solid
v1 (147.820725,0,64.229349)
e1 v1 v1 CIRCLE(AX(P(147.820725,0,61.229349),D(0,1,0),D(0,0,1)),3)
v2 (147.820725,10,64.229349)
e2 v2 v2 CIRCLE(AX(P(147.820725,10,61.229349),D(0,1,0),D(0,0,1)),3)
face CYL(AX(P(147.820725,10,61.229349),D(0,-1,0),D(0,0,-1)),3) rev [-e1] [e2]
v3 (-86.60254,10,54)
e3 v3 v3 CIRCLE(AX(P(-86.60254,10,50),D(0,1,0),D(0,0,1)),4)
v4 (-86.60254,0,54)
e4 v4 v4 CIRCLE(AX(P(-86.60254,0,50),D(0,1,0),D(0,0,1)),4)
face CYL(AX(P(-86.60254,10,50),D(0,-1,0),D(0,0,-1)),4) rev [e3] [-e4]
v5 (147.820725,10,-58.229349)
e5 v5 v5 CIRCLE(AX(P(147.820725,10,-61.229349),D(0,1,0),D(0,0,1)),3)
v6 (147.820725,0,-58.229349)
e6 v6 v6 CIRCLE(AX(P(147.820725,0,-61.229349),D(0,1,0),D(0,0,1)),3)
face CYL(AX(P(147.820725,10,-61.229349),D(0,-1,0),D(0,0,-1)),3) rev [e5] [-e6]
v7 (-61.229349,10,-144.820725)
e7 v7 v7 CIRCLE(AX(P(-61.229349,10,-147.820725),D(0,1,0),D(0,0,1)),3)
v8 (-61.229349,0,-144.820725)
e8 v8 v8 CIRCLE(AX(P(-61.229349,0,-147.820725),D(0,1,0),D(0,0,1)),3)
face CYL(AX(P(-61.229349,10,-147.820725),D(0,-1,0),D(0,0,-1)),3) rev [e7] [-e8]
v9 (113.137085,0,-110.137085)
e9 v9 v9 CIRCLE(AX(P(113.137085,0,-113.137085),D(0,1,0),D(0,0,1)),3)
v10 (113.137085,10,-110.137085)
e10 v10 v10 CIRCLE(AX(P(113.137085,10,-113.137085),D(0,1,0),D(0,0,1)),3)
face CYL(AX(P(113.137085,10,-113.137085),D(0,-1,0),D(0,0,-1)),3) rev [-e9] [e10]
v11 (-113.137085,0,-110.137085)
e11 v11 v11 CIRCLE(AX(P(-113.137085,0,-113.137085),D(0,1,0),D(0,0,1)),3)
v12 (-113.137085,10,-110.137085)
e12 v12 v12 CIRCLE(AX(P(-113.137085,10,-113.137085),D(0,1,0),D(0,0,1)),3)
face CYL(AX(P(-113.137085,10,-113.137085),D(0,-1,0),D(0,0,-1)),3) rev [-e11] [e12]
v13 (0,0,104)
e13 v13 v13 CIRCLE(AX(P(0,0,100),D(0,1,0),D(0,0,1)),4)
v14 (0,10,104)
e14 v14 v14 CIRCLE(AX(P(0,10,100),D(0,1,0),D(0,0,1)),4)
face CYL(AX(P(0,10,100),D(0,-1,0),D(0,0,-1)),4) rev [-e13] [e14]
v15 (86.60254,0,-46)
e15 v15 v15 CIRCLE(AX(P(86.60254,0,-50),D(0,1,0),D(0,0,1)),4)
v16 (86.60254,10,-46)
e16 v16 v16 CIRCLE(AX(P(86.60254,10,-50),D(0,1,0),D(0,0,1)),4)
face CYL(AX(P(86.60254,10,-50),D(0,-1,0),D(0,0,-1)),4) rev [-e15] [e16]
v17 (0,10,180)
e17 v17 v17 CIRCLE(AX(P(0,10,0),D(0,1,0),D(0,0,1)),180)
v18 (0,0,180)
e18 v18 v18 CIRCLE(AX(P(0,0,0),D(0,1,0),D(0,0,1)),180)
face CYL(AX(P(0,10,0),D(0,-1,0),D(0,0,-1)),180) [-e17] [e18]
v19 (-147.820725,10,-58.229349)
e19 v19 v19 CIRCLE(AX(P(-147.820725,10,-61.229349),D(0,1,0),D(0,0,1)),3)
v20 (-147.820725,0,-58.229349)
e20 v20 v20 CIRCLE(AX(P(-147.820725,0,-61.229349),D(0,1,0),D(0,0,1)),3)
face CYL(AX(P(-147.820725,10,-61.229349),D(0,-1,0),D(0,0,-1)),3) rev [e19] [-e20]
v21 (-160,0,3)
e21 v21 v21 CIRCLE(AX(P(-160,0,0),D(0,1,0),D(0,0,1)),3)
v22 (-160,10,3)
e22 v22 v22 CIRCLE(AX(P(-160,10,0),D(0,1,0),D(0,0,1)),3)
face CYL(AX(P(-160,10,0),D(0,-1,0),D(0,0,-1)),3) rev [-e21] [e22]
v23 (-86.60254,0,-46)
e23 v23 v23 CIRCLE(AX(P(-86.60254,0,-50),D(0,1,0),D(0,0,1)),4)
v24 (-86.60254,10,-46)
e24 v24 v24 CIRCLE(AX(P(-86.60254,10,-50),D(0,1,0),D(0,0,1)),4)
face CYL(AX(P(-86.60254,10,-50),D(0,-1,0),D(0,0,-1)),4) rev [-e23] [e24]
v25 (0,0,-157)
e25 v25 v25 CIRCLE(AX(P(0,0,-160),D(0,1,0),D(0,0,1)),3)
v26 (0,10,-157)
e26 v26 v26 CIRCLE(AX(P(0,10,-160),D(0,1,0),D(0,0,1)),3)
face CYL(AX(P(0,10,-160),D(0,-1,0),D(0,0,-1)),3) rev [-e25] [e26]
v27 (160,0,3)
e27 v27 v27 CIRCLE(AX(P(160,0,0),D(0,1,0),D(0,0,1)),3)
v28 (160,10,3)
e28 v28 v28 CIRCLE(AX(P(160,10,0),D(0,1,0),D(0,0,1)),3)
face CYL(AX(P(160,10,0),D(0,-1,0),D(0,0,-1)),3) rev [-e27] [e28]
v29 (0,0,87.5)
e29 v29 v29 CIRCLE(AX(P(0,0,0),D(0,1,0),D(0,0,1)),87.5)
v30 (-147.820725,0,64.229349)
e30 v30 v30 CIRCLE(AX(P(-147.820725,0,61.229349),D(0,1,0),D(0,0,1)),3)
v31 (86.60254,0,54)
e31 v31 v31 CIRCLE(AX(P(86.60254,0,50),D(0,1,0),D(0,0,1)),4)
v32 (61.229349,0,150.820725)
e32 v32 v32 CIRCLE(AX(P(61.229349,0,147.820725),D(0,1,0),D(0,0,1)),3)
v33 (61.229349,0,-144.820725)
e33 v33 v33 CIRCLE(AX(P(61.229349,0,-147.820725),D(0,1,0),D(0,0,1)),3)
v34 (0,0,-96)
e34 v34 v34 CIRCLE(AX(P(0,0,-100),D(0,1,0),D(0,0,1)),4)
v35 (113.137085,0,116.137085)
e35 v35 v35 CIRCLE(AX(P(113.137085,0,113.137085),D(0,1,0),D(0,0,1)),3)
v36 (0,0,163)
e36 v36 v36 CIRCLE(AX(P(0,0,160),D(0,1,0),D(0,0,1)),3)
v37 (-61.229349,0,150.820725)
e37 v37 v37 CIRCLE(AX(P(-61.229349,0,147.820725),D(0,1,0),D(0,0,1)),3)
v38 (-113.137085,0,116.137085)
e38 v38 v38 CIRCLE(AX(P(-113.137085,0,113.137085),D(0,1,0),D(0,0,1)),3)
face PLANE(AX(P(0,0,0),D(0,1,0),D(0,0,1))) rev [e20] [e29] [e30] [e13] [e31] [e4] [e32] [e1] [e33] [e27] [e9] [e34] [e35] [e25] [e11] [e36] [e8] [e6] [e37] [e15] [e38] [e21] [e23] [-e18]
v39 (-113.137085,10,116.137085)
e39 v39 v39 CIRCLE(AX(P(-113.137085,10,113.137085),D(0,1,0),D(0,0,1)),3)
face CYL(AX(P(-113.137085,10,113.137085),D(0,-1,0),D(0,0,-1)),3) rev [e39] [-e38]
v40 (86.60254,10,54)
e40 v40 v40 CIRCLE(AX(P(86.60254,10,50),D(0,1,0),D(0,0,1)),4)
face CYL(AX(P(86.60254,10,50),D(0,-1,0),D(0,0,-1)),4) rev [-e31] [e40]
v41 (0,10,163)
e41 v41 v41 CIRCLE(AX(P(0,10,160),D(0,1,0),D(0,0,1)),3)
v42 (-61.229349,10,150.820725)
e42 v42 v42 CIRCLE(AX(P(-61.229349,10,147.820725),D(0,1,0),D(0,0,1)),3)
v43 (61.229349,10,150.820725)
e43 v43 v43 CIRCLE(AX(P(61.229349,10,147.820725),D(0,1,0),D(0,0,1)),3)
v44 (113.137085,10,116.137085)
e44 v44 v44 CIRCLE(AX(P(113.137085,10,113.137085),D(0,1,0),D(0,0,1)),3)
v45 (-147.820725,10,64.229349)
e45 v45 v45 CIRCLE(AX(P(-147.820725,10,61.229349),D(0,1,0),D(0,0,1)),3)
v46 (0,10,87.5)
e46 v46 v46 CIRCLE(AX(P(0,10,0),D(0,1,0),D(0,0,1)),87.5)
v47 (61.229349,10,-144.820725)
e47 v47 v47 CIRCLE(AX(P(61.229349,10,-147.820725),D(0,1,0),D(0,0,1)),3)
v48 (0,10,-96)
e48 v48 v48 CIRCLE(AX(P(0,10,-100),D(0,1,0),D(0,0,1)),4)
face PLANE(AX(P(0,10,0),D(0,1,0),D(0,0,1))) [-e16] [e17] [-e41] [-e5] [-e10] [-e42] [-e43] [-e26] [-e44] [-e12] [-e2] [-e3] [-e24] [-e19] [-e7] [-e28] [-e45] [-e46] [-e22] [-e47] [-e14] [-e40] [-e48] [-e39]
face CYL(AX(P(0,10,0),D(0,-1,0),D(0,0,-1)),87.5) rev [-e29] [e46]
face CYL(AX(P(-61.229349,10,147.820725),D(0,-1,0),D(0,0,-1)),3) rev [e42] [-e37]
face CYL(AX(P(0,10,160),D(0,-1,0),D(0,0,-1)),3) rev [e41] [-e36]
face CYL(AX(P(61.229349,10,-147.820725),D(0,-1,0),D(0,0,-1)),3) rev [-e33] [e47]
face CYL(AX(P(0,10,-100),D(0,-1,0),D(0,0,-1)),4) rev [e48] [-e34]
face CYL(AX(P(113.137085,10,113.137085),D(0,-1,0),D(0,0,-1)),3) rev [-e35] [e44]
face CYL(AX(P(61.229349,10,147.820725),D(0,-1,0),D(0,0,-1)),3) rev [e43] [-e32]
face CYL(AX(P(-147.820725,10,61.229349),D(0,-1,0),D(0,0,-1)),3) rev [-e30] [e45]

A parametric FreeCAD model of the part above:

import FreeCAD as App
import Part
import Sketcher

V = App.Vector
Q = App.Units.Quantity

doc = App.newDocument("Part")
body = doc.addObject("PartDesign::Body", "Body")

sketch1 = doc.addObject("Sketcher::SketchObject", "Sketch")
body.addObject(sketch1)
sketch1.AttachmentSupport = (doc.XZ_Plane, [""])
sketch1.MapMode = "FlatFace"
sketch1.addGeometry([
    Part.Circle(V(0, 0, 0), V(0, 0, 1), 180),
    Part.Circle(V(-113.1, 113.1, 0), V(0, 0, 1), 3),
    Part.Circle(V(-61.2, 147.8, 0), V(0, 0, 1), 3),
    Part.Circle(V(-147.8, 61.2, 0), V(0, 0, 1), 3),
    Part.Circle(V(-86.6, 50, 0), V(0, 0, 1), 4),
    Part.Circle(V(0, 160, 0), V(0, 0, 1), 3),
    Part.Circle(V(61.2, 147.8, 0), V(0, 0, 1), 3),
    Part.Circle(V(0, 100, 0), V(0, 0, 1), 4),
    Part.Circle(V(113.1, 113.1, 0), V(0, 0, 1), 3),
    Part.Circle(V(86.6, 50, 0), V(0, 0, 1), 4),
    Part.Circle(V(147.8, 61.2, 0), V(0, 0, 1), 3),
    Part.Circle(V(-160, 0, 0), V(0, 0, 1), 3),
    Part.Circle(V(-147.8, -61.2, 0), V(0, 0, 1), 3),
    Part.Circle(V(-86.6, -50, 0), V(0, 0, 1), 4),
    Part.Circle(V(-113.1, -113.1, 0), V(0, 0, 1), 3),
    Part.Circle(V(-61.2, -147.8, 0), V(0, 0, 1), 3),
    Part.Circle(V(0, 0, 0), V(0, 0, 1), 87.5),
    Part.Circle(V(160, 0, 0), V(0, 0, 1), 3),
    Part.Circle(V(86.6, -50, 0), V(0, 0, 1), 4),
    Part.Circle(V(147.8, -61.2, 0), V(0, 0, 1), 3),
    Part.Circle(V(0, -100, 0), V(0, 0, 1), 4),
    Part.Circle(V(0, -160, 0), V(0, 0, 1), 3),
    Part.Circle(V(61.2, -147.8, 0), V(0, 0, 1), 3),
    Part.Circle(V(113.1, -113.1, 0), V(0, 0, 1), 3),
], False)
sketch1.addConstraint([
    Sketcher.Constraint("Coincident", 0, 3, -1, 1),
    Sketcher.Constraint("Coincident", 16, 3, -1, 1),
    Sketcher.Constraint("Equal", 1, 2),
    Sketcher.Constraint("Equal", 2, 3),
    Sketcher.Constraint("Equal", 3, 5),
    Sketcher.Constraint("Equal", 5, 6),
    Sketcher.Constraint("Equal", 4, 7),
    Sketcher.Constraint("Equal", 6, 8),
    Sketcher.Constraint("Equal", 7, 9),
    Sketcher.Constraint("Equal", 8, 10),
    Sketcher.Constraint("Equal", 10, 11),
    Sketcher.Constraint("Equal", 11, 12),
    Sketcher.Constraint("Equal", 9, 13),
    Sketcher.Constraint("Equal", 12, 14),
    Sketcher.Constraint("Equal", 14, 15),
    Sketcher.Constraint("Equal", 15, 17),
    Sketcher.Constraint("Equal", 13, 18),
    Sketcher.Constraint("Equal", 17, 19),
    Sketcher.Constraint("Equal", 18, 20),
    Sketcher.Constraint("Equal", 19, 21),
    Sketcher.Constraint("Equal", 21, 22),
    Sketcher.Constraint("Equal", 22, 23),
    Sketcher.Constraint("Symmetric", 10, 3, 12, 3, -1, 1),
    Sketcher.Constraint("Symmetric", 9, 3, 13, 3, -1, 1),
    Sketcher.Constraint("Symmetric", 8, 3, 14, 3, -1, 1),
    Sketcher.Constraint("Symmetric", 6, 3, 15, 3, -1, 1),
    Sketcher.Constraint("Symmetric", 11, 3, 17, 3, -1, 1),
    Sketcher.Constraint("Symmetric", 4, 3, 18, 3, -1, 1),
    Sketcher.Constraint("Symmetric", 3, 3, 19, 3, -1, 1),
    Sketcher.Constraint("Symmetric", 7, 3, 20, 3, -1, 1),
    Sketcher.Constraint("Symmetric", 5, 3, 21, 3, -1, 1),
    Sketcher.Constraint("Symmetric", 2, 3, 22, 3, -1, 1),
    Sketcher.Constraint("Symmetric", 1, 3, 23, 3, -1, 1),
    Sketcher.Constraint("Symmetric", 2, 3, 6, 3, -2),
    Sketcher.Constraint("Symmetric", 1, 3, 8, 3, -2),
    Sketcher.Constraint("Symmetric", 4, 3, 9, 3, -2),
    Sketcher.Constraint("Symmetric", 3, 3, 10, 3, -2),
    Sketcher.Constraint("PointOnObject", 5, 3, -2),
    Sketcher.Constraint("PointOnObject", 7, 3, -2),
    Sketcher.Constraint("PointOnObject", 11, 3, -1),
    Sketcher.Constraint("Diameter", 0, Q("360 mm")),
    Sketcher.Constraint("Diameter", 1, Q("6 mm")),
    Sketcher.Constraint("Diameter", 4, Q("8 mm")),
    Sketcher.Constraint("Diameter", 16, Q("175 mm")),
    Sketcher.Constraint("DistanceY", -1, 1, 4, 3, Q("50 mm")),
    Sketcher.Constraint("DistanceY", -1, 1, 5, 3, Q("160 mm")),
    Sketcher.Constraint("DistanceY", -1, 1, 7, 3, Q("100 mm")),
    Sketcher.Constraint("DistanceX", 11, 3, -1, 1, Q("160 mm")),
    Sketcher.Constraint("DistanceX", 2, 3, 6, 3, Q("122.458698 mm")),
    Sketcher.Constraint("DistanceY", 12, 3, 3, 3, Q("122.458698 mm")),
    Sketcher.Constraint("DistanceX", 4, 3, -1, 1, Q("86.60254 mm")),
    Sketcher.Constraint("DistanceY", 1, 3, 2, 3, Q("34.68364 mm")),
    Sketcher.Constraint("DistanceX", 3, 3, 1, 3, Q("34.68364 mm")),
    Sketcher.Constraint("DistanceX", 1, 3, -1, 1, Q("113.137085 mm")),
    Sketcher.Constraint("DistanceY", -1, 1, 1, 3, Q("113.137085 mm")),
])
pad1 = doc.addObject("PartDesign::Pad", "Pad")
body.addObject(pad1)
pad1.Profile = sketch1
pad1.Length = 10
pad1.Reversed = True

doc.recompute()
